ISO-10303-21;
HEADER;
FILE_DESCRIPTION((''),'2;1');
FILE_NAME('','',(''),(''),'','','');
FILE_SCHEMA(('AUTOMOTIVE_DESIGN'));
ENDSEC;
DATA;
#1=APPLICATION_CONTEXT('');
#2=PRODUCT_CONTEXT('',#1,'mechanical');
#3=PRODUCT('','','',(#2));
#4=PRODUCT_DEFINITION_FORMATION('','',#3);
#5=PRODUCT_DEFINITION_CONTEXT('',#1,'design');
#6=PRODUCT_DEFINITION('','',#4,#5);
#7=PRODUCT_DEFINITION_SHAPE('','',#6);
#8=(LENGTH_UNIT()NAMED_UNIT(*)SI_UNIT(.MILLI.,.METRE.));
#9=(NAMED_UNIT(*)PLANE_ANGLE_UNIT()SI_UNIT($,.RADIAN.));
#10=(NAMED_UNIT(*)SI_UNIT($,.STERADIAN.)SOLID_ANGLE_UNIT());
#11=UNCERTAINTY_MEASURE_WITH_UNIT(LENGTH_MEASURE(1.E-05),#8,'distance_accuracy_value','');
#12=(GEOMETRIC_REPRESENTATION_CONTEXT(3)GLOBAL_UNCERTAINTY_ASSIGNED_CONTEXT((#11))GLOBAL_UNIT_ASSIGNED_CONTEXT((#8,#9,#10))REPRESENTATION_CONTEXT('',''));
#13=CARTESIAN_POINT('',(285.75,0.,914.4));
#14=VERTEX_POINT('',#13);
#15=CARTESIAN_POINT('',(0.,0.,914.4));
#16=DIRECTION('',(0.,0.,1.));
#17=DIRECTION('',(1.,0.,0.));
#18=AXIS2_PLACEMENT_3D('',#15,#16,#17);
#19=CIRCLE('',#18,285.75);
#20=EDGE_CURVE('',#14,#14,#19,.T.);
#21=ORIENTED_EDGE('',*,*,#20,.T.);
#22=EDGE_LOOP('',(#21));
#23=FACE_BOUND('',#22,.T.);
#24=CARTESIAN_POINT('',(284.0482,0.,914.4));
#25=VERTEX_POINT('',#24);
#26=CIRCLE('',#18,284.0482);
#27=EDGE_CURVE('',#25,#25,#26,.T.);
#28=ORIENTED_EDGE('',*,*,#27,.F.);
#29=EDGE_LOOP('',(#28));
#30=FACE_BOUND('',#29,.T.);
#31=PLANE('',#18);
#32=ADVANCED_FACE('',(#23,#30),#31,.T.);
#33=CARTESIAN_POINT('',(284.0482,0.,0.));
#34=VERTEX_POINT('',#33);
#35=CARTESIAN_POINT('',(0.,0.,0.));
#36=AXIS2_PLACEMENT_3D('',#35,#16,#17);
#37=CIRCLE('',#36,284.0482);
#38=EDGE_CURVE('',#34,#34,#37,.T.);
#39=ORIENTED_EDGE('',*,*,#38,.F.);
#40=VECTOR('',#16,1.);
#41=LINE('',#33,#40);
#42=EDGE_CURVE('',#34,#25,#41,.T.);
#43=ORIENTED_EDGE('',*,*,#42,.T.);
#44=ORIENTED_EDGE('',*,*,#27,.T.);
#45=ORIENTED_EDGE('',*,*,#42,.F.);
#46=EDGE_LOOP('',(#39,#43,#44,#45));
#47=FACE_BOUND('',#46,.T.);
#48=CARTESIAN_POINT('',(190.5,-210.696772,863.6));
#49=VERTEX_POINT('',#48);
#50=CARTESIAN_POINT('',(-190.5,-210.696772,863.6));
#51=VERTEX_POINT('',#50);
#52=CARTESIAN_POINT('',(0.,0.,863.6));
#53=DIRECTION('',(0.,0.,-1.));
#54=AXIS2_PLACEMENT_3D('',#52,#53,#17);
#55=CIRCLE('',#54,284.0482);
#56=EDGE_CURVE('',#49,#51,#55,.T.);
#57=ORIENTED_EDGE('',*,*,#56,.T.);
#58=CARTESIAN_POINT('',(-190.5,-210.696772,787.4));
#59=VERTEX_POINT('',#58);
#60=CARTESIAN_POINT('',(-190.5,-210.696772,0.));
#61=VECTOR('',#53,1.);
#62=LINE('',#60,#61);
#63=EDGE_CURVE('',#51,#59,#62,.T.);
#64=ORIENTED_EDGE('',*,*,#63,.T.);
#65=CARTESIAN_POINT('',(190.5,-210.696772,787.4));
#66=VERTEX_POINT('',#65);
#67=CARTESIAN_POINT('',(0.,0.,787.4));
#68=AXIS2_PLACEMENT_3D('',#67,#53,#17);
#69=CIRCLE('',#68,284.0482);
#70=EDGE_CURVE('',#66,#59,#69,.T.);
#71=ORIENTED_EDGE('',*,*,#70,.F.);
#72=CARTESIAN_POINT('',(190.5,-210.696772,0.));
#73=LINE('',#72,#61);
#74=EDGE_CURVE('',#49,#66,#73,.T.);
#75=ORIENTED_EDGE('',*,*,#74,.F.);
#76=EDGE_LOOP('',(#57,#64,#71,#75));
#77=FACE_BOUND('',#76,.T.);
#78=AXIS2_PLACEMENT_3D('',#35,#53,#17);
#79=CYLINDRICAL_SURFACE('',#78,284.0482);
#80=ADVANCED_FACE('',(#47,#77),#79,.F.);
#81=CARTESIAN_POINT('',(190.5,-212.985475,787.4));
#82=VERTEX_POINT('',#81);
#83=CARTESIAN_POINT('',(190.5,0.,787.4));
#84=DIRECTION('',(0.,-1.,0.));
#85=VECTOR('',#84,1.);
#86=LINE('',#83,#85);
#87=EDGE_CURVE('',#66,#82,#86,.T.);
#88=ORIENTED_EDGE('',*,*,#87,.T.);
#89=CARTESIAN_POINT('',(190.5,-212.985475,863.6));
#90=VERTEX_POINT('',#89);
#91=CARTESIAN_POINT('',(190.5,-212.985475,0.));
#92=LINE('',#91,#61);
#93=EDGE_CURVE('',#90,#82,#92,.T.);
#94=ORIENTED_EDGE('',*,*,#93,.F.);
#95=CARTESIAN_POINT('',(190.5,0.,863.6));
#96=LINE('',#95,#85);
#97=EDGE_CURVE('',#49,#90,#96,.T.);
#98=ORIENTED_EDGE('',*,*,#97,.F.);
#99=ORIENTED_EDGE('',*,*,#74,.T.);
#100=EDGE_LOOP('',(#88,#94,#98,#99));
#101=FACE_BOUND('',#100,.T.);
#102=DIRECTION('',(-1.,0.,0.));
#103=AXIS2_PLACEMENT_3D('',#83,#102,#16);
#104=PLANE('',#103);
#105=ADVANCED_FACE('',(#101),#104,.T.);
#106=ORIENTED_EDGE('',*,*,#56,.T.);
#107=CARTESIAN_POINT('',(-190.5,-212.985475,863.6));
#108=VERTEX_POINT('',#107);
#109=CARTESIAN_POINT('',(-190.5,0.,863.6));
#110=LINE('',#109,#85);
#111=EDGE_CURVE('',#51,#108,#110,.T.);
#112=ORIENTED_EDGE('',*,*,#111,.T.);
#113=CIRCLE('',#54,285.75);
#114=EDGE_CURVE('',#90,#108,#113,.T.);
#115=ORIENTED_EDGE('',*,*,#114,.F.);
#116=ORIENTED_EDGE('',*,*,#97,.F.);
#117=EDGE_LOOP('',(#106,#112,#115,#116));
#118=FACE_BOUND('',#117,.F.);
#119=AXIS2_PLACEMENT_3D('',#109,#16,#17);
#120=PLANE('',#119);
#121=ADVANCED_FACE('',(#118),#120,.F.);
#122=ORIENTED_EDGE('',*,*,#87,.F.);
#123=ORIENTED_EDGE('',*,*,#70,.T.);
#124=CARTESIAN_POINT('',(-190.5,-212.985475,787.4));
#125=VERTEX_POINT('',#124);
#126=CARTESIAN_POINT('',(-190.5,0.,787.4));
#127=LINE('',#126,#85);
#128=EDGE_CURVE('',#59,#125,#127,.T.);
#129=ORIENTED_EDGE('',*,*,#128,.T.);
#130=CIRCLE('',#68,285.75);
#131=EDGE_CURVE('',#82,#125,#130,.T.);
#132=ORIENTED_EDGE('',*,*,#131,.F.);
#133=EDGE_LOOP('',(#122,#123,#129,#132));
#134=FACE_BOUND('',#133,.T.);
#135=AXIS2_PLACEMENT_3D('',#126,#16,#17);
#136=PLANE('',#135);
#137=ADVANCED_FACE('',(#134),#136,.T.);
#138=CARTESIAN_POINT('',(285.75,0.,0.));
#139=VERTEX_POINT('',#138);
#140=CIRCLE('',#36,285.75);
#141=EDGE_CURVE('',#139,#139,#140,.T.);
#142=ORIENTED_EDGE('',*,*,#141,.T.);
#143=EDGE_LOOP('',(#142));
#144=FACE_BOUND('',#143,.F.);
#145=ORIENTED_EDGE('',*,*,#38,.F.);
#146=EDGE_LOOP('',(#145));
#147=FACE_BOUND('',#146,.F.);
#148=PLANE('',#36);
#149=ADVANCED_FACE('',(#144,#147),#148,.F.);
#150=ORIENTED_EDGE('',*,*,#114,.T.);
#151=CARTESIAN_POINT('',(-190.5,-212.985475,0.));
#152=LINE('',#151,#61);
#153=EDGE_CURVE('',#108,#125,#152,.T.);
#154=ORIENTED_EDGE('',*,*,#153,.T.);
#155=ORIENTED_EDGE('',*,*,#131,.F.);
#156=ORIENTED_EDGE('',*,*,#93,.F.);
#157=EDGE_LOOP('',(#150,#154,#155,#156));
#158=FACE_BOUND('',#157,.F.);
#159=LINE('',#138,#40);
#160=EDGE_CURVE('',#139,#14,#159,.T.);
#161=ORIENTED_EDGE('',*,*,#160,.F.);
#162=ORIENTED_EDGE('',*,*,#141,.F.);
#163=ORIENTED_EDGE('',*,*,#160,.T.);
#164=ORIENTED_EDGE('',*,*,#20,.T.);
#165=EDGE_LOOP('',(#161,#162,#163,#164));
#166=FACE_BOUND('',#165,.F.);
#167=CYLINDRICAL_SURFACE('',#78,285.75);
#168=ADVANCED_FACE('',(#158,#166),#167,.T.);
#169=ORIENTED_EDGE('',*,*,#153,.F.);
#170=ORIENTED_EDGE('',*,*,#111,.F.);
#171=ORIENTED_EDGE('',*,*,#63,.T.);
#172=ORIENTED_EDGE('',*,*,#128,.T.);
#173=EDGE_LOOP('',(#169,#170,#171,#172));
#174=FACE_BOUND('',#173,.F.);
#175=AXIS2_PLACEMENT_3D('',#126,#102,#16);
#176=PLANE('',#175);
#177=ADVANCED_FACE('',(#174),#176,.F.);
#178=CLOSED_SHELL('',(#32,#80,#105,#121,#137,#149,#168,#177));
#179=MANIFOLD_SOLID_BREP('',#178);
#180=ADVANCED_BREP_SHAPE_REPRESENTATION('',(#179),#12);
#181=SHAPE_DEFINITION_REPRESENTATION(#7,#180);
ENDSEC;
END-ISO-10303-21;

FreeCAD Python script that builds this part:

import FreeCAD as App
import Part
import Sketcher
from FreeCAD import Vector
Q = App.Units.Quantity


def add_polygon(sketch, points):
    """Adds a closed chain of lines whose ends are joined by coincident constraints."""
    first, n = sketch.GeometryCount, len(points)
    for a, b in zip(points, points[1:] + points[:1]):
        sketch.addGeometry(Part.LineSegment(App.Vector(*a, 0), App.Vector(*b, 0)), False)
    for i in range(n):
        sketch.addConstraint(Sketcher.Constraint("Coincident", first + i, 2, first + (i + 1) % n, 1))

doc = App.newDocument("Part")
body = doc.addObject("PartDesign::Body", "Body")

# Sketch on XY plane
sketch1 = body.newObject("Sketcher::SketchObject", "Sketch")
sketch1.AttachmentSupport = (doc.getObject("XY_Plane"), [""])
sketch1.MapMode = "FlatFace"
sketch1.addGeometry(Part.Circle(Vector(0, 0, 0), Vector(0, 0, 1), 285.75), False)
sketch1.addGeometry(Part.Circle(Vector(0, 0, 0), Vector(0, 0, 1), 284.0482), False)
sketch1.addConstraint(Sketcher.Constraint("Coincident", 0, 3, -1, 1))
sketch1.addConstraint(Sketcher.Constraint("Coincident", 1, 3, -1, 1))
sketch1.addConstraint(Sketcher.Constraint("Diameter", 0, Q("22.5 in")))
sketch1.addConstraint(Sketcher.Constraint("Diameter", 1, Q("22.366 in")))
pad1 = body.newObject("PartDesign::Pad", "Pad")
pad1.Profile = sketch1
pad1.Length = Q("36 in")

# Sketch on XZ plane
sketch2 = body.newObject("Sketcher::SketchObject", "Sketch001")
sketch2.AttachmentSupport = (doc.getObject("XZ_Plane"), [""])
sketch2.MapMode = "FlatFace"
add_polygon(sketch2, [(-190.5, 863.6), (-190.5, 787.4), (190.5, 787.4), (190.5, 863.6)])  # lines 0-3
sketch2.addConstraint(Sketcher.Constraint("Vertical", 0))
sketch2.addConstraint(Sketcher.Constraint("Horizontal", 1))
sketch2.addConstraint(Sketcher.Constraint("Vertical", 2))
sketch2.addConstraint(Sketcher.Constraint("Horizontal", 3))
sketch2.addConstraint(Sketcher.Constraint("DistanceX", 1, 1, 1, 2, Q("15 in")))
sketch2.addConstraint(Sketcher.Constraint("DistanceY", 0, 2, 0, 1, Q("3 in")))
sketch2.addConstraint(Sketcher.Constraint("DistanceY", -1, 1, 0, 2, Q("31 in")))
sketch2.addConstraint(Sketcher.Constraint("DistanceX", 0, 2, -1, 1, Q("7.5 in")))
pocket1 = body.newObject("PartDesign::Pocket", "Pocket")
pocket1.Profile = sketch2
pocket1.Type = "ThroughAll"
pocket1.Reversed = True

doc.recompute()
